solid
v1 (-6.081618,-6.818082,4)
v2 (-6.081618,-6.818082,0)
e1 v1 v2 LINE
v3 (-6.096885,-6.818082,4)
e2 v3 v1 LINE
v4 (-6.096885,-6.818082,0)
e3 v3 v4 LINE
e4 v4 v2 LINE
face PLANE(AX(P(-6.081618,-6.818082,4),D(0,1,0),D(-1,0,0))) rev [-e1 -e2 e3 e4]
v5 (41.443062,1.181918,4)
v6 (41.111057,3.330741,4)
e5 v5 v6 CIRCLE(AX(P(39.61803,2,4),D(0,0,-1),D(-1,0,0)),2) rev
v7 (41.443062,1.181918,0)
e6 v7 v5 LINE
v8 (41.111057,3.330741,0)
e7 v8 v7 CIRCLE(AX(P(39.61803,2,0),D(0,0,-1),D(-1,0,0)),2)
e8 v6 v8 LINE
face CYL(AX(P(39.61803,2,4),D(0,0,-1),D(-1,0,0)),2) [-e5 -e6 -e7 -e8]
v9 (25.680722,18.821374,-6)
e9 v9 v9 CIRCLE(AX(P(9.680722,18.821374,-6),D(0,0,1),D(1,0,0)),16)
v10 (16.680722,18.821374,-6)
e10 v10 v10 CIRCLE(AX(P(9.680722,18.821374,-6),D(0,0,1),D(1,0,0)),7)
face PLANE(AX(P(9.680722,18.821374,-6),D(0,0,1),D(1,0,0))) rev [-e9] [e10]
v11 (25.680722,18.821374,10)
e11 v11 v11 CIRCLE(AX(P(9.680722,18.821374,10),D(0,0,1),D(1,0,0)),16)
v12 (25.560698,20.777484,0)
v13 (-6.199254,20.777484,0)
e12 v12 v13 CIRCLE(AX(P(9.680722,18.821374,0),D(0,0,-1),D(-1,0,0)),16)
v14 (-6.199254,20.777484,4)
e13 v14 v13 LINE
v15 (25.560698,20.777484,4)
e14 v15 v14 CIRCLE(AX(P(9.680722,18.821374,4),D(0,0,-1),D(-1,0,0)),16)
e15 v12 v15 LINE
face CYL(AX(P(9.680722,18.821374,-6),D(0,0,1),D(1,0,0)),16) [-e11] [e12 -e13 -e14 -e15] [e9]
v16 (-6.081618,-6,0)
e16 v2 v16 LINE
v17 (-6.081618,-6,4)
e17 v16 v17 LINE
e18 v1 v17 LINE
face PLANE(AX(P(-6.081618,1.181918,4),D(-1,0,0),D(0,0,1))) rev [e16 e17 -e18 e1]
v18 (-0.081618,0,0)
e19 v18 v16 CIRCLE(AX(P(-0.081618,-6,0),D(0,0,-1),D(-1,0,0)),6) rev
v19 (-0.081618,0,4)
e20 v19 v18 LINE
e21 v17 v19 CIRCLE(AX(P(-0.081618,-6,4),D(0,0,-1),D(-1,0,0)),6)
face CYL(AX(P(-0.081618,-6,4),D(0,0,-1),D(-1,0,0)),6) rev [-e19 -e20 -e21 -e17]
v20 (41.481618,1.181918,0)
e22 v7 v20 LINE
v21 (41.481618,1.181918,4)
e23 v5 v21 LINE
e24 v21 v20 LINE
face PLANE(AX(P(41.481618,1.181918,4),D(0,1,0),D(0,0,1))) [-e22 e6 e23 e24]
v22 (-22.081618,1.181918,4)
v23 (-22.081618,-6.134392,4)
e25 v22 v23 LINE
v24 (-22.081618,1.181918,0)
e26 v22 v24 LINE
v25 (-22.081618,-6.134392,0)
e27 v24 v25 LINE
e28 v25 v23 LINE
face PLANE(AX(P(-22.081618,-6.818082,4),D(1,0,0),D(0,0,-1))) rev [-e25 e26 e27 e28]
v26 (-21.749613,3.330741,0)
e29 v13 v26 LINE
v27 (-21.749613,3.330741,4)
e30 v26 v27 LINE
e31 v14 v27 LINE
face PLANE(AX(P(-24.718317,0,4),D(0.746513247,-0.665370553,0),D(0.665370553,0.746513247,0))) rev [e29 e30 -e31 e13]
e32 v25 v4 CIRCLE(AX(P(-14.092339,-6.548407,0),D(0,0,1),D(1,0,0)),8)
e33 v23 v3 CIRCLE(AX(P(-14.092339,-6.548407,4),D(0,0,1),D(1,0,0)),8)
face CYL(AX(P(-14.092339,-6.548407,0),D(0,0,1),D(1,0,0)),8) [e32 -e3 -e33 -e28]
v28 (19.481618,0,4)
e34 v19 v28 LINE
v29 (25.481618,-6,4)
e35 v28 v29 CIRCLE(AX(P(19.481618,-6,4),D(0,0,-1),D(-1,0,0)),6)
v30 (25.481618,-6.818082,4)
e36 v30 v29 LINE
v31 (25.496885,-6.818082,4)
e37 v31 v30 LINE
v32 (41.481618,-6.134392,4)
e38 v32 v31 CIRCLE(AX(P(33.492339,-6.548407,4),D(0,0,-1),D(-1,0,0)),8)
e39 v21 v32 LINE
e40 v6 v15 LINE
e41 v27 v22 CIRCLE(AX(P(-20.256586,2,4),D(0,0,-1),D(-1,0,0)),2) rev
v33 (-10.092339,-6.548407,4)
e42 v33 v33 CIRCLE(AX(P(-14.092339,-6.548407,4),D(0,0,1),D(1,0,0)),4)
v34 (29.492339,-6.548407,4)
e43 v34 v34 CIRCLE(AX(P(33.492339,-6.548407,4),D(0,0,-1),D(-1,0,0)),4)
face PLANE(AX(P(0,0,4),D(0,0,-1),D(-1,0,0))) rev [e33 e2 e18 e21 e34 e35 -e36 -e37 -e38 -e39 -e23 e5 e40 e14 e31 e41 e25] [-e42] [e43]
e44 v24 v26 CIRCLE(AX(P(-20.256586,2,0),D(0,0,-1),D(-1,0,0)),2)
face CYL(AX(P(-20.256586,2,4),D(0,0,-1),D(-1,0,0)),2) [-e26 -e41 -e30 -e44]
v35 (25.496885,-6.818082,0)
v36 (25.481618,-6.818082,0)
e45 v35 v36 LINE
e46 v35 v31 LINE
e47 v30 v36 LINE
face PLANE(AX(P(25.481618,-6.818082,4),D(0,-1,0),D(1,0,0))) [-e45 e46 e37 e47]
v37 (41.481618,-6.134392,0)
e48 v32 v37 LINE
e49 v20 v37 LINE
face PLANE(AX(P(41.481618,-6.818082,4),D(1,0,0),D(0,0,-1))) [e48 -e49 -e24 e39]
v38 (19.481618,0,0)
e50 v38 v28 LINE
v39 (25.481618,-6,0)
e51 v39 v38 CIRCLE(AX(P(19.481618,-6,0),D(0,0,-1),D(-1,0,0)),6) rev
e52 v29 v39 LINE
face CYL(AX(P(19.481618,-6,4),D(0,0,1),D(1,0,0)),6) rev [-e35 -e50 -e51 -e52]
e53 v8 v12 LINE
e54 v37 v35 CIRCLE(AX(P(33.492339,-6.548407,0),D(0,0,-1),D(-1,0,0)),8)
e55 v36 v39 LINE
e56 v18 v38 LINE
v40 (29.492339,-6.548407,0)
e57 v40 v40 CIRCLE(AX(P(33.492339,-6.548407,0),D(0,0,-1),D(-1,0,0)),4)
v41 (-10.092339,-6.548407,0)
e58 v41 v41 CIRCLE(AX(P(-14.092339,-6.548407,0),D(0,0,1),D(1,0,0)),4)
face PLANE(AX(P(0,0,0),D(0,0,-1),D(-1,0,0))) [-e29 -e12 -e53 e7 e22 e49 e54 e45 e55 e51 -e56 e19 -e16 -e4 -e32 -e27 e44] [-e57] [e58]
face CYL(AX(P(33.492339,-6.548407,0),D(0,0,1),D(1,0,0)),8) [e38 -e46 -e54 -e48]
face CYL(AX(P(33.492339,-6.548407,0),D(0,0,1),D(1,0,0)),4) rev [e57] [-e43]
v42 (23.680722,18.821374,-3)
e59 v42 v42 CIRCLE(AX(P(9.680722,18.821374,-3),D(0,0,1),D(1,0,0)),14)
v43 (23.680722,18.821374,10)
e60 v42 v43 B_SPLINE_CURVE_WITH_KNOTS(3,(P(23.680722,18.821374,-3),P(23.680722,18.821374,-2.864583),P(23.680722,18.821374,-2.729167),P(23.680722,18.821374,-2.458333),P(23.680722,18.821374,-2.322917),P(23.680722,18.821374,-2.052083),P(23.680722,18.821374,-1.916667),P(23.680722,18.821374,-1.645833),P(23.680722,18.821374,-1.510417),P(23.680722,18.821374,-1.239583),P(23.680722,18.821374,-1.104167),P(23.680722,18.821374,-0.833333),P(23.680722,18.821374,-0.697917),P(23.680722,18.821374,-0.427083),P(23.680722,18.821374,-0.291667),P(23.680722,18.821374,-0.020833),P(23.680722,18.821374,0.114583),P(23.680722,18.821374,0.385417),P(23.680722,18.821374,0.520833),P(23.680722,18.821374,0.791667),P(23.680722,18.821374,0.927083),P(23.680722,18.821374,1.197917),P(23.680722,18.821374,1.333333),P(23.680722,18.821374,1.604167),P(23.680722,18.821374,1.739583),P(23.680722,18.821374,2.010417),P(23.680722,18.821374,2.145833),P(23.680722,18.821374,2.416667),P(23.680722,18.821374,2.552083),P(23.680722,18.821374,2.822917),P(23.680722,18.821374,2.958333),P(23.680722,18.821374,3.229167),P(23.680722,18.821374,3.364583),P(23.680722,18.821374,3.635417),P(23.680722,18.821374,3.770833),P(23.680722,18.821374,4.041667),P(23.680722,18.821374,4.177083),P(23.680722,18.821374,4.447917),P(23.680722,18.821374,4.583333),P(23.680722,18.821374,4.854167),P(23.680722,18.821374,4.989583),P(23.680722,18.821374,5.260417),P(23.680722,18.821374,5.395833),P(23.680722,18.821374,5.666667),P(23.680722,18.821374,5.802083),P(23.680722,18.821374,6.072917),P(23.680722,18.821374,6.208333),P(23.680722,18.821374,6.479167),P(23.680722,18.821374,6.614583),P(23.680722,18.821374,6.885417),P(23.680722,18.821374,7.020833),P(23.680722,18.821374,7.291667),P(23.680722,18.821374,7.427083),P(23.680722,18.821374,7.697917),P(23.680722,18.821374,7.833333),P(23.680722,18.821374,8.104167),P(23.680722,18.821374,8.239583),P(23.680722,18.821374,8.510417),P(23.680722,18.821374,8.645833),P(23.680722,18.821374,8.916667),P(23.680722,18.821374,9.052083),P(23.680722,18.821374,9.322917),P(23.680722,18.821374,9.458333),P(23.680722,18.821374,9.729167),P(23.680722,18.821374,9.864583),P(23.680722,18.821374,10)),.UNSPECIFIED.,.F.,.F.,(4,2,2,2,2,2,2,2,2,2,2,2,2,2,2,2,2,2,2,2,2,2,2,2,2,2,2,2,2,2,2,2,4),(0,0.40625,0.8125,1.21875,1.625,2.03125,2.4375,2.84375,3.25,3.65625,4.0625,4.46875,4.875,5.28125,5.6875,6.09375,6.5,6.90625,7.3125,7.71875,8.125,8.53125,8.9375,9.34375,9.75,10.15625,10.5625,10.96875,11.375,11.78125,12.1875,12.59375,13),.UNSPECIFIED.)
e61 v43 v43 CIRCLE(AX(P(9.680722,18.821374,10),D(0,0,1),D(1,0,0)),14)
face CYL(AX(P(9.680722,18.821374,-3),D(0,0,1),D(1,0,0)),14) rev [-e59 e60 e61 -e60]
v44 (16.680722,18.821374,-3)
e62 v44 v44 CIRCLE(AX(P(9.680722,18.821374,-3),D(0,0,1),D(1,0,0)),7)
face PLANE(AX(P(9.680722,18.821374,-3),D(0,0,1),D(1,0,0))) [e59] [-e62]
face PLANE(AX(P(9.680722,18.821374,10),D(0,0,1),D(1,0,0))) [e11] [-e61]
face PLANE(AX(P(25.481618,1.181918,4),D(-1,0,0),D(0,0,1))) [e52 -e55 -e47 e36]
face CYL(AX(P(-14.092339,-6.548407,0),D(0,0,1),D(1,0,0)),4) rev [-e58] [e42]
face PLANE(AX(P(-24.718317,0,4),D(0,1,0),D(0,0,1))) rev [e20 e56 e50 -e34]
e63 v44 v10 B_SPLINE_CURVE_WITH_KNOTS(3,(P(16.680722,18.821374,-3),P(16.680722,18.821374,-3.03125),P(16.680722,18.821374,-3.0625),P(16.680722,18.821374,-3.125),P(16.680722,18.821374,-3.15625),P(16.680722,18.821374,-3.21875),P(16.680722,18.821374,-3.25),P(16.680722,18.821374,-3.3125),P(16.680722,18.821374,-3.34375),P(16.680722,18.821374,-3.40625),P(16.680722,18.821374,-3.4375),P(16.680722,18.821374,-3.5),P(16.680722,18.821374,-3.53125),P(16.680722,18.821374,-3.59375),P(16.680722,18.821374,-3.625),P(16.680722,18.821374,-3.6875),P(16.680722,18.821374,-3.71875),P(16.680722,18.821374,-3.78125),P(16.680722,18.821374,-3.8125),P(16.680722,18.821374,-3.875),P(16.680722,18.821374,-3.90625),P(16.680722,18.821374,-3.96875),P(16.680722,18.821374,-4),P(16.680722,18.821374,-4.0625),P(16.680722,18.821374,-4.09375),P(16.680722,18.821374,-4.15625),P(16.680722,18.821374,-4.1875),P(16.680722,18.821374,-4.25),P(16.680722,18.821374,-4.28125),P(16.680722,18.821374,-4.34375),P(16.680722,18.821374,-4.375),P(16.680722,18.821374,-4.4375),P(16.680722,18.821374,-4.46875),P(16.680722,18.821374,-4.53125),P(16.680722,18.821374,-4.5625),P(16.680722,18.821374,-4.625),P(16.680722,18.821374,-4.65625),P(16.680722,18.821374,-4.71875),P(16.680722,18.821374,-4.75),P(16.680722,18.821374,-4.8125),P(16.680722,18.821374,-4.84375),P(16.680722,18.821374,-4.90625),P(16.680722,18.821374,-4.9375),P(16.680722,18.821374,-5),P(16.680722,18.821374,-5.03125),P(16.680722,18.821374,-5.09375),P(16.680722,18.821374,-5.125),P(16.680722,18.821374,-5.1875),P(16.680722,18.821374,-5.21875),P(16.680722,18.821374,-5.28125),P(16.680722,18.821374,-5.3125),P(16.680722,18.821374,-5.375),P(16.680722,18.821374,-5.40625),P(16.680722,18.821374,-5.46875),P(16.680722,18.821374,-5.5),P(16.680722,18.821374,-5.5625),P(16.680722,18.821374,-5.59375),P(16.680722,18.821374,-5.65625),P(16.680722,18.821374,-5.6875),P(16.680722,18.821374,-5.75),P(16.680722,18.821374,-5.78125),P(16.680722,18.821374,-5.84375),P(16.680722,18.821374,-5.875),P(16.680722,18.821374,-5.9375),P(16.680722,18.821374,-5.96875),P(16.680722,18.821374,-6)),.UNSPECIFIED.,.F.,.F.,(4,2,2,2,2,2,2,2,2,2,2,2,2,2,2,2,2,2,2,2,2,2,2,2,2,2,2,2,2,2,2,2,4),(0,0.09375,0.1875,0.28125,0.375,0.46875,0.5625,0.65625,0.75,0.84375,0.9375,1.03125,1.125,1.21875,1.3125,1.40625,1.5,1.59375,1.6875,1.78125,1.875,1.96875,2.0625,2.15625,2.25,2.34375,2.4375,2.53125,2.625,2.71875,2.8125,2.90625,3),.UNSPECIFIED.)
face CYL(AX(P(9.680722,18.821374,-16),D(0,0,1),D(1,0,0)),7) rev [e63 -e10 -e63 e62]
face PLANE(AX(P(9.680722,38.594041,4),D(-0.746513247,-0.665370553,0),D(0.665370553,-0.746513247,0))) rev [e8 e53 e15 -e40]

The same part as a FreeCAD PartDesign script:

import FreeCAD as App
import Part
import Sketcher


def edges_at(feature, points):
    """Names of the edges that pass closest to the given points."""
    edges = feature.Shape.Edges
    near = lambda p: min(range(len(edges)), key=lambda i: edges[i].distToShape(Part.Vertex(*p))[0])
    return sorted({f"Edge{near(p) + 1}" for p in points})


def add_polygon(sketch, points):
    """Adds a closed chain of lines whose ends are joined by coincident constraints."""
    first, n = sketch.GeometryCount, len(points)
    for a, b in zip(points, points[1:] + points[:1]):
        sketch.addGeometry(Part.LineSegment(App.Vector(*a, 0), App.Vector(*b, 0)), False)
    for i in range(n):
        sketch.addConstraint(Sketcher.Constraint("Coincident", first + i, 2, first + (i + 1) % n, 1))

doc = App.newDocument("Part")
body = doc.addObject("PartDesign::Body", "Body")

sketch1 = doc.addObject("Sketcher::SketchObject", "Sketch")
body.addObject(sketch1)
sketch1.AttachmentSupport = (doc.XY_Plane, [""])
sketch1.MapMode = "FlatFace"
add_polygon(sketch1, [(-24.718317, 0), (44.079761, 0), (9.680722, 38.594041)])
sketch1.addConstraint([
    Sketcher.Constraint("Horizontal", 0),
    Sketcher.Constraint("PointOnObject", 0, 2, -1),
    Sketcher.Constraint("Equal", 1, 2),
    Sketcher.Constraint("DistanceX", 0, 1, 0, 2, 68.798078),
    Sketcher.Constraint("Distance", 1, 51.699071),
    Sketcher.Constraint("DistanceX", -1, 1, 0, 2, 44.079761),
])
pad1 = doc.addObject("PartDesign::Pad", "Pad")
body.addObject(pad1)
pad1.Profile = sketch1
pad1.Length = 4
doc.recompute()

fillet = doc.addObject("PartDesign::Fillet", "Fillet")
body.addObject(fillet)
fillet.Base = (pad1, edges_at(pad1, [(9.681, 38.594, 2)]))
fillet.Radius = 8
doc.recompute()

fillet2 = doc.addObject("PartDesign::Fillet", "Fillet001")
body.addObject(fillet2)
fillet2.Base = (fillet, edges_at(fillet, [(44.08, 0, 2), (-24.718, 0, 2)]))
fillet2.Radius = 2

sketch2 = doc.addObject("Sketcher::SketchObject", "Sketch001")
body.addObject(sketch2)
sketch2.AttachmentSupport = (doc.XY_Plane, [""])
sketch2.MapMode = "FlatFace"
add_polygon(sketch2, [(-22.081618, 1.181918), (-22.081618, -6.818082), (-6.081618, -6.818082), (-6.081618, 1.181918)])
sketch2.addConstraint([
    Sketcher.Constraint("Vertical", 0),
    Sketcher.Constraint("Horizontal", 1),
    Sketcher.Constraint("Vertical", 2),
    Sketcher.Constraint("Horizontal", 3),
    Sketcher.Constraint("DistanceX", 1, 1, 1, 2, 16.0),
    Sketcher.Constraint("DistanceY", 0, 2, 0, 1, 8.0),
    Sketcher.Constraint("DistanceX", 0, 2, -1, 1, 22.081618),
    Sketcher.Constraint("DistanceY", 0, 2, -1, 1, 6.818082),
])
pad2 = doc.addObject("PartDesign::Pad", "Pad001")
body.addObject(pad2)
pad2.Profile = sketch2
pad2.Length = 4

sketch3 = doc.addObject("Sketcher::SketchObject", "Sketch002")
body.addObject(sketch3)
sketch3.AttachmentSupport = (doc.XY_Plane, [""])
sketch3.MapMode = "FlatFace"
sketch3.AttachmentOffset = App.Placement(App.Vector(0, 0, 4), App.Rotation())
sketch3.addGeometry(Part.Circle(App.Vector(-14.092339, -6.548407, 0), App.Vector(0, 0, 1), 8), False)
sketch3.addConstraint([
    Sketcher.Constraint("Diameter", 0, 16.0),
    Sketcher.Constraint("DistanceX", 0, 3, -1, 1, 14.092339),
    Sketcher.Constraint("DistanceY", 0, 3, -1, 1, 6.548407),
])
pad3 = doc.addObject("PartDesign::Pad", "Pad002")
body.addObject(pad3)
pad3.Profile = sketch3
pad3.Length = 4
pad3.Reversed = True
doc.recompute()

fillet3 = doc.addObject("PartDesign::Fillet", "Fillet002")
body.addObject(fillet3)
fillet3.Base = (pad3, edges_at(pad3, [(-6.082, 0, 2)]))
fillet3.Radius = 6

sketch4 = doc.addObject("Sketcher::SketchObject", "Sketch003")
body.addObject(sketch4)
sketch4.AttachmentSupport = (doc.XY_Plane, [""])
sketch4.MapMode = "FlatFace"
sketch4.AttachmentOffset = App.Placement(App.Vector(0, 0, 4), App.Rotation())
sketch4.addGeometry(Part.Circle(App.Vector(-14.092339, -6.548407, 0), App.Vector(0, 0, 1), 4), False)
sketch4.addConstraint([
    Sketcher.Constraint("Diameter", 0, 8.0),
    Sketcher.Constraint("DistanceX", 0, 3, -1, 1, 14.092339),
    Sketcher.Constraint("DistanceY", 0, 3, -1, 1, 6.548407),
])
pocket1 = doc.addObject("PartDesign::Pocket", "Pocket")
body.addObject(pocket1)
pocket1.Profile = sketch4
pocket1.Length = 4
doc.recompute()

datumplane = doc.addObject("PartDesign::Plane", "DatumPlane")
body.addObject(datumplane)
datumplane.AttachmentSupport = (doc.YZ_Plane, [""])
datumplane.MapMode = "FlatFace"
datumplane.AttachmentOffset = App.Placement(App.Vector(0, 0, 9.7), App.Rotation())
mirrored = doc.addObject("PartDesign::Mirrored", "Mirrored")
body.addObject(mirrored)
mirrored.Originals = [pad2, pad3, pocket1]
mirrored.MirrorPlane = (datumplane, [""])
body.Tip = mirrored
doc.recompute()

fillet4 = doc.addObject("PartDesign::Fillet", "Fillet003")
body.addObject(fillet4)
fillet4.Base = (mirrored, edges_at(mirrored, [(25.482, 0, 2)]))
fillet4.Radius = 6

sketch5 = doc.addObject("Sketcher::SketchObject", "Sketch004")
body.addObject(sketch5)
sketch5.AttachmentSupport = (doc.XY_Plane, [""])
sketch5.MapMode = "FlatFace"
sketch5.AttachmentOffset = App.Placement(App.Vector(0, 0, 4), App.Rotation())
sketch5.addGeometry(Part.Circle(App.Vector(9.680722, 18.821374, 0), App.Vector(0, 0, 1), 16), False)
sketch5.addConstraint([
    Sketcher.Constraint("Diameter", 0, 32.0),
    Sketcher.Constraint("DistanceX", -1, 1, 0, 3, 9.680722),
    Sketcher.Constraint("DistanceY", -1, 1, 0, 3, 18.821374),
])
pad4 = doc.addObject("PartDesign::Pad", "Pad003")
body.addObject(pad4)
pad4.Profile = sketch5
pad4.Type = "TwoLengths"
pad4.Length = 6
pad4.Length2 = 10

sketch6 = doc.addObject("Sketcher::SketchObject", "Sketch005")
body.addObject(sketch6)
sketch6.AttachmentSupport = (doc.XY_Plane, [""])
sketch6.MapMode = "FlatFace"
sketch6.AttachmentOffset = App.Placement(App.Vector(0, 0, 10), App.Rotation())
sketch6.addGeometry(Part.Circle(App.Vector(9.680722, 18.821374, 0), App.Vector(0, 0, 1), 14), False)
sketch6.addConstraint([
    Sketcher.Constraint("Diameter", 0, 28.0),
    Sketcher.Constraint("DistanceX", -1, 1, 0, 3, 9.680722),
    Sketcher.Constraint("DistanceY", -1, 1, 0, 3, 18.821374),
])
pocket2 = doc.addObject("PartDesign::Pocket", "Pocket001")
body.addObject(pocket2)
pocket2.Profile = sketch6
pocket2.Length = 13

sketch7 = doc.addObject("Sketcher::SketchObject", "Sketch006")
body.addObject(sketch7)
sketch7.AttachmentSupport = (doc.XY_Plane, [""])
sketch7.MapMode = "FlatFace"
sketch7.AttachmentOffset = App.Placement(App.Vector(0, 0, -3), App.Rotation())
sketch7.addGeometry(Part.Circle(App.Vector(9.680722, 18.821374, 0), App.Vector(0, 0, 1), 7), False)
sketch7.addConstraint([
    Sketcher.Constraint("Diameter", 0, 14.0),
    Sketcher.Constraint("DistanceX", -1, 1, 0, 3, 9.680722),
    Sketcher.Constraint("DistanceY", -1, 1, 0, 3, 18.821374),
])
pocket3 = doc.addObject("PartDesign::Pocket", "Pocket002")
body.addObject(pocket3)
pocket3.Profile = sketch7
pocket3.Length = 13

doc.recompute()
